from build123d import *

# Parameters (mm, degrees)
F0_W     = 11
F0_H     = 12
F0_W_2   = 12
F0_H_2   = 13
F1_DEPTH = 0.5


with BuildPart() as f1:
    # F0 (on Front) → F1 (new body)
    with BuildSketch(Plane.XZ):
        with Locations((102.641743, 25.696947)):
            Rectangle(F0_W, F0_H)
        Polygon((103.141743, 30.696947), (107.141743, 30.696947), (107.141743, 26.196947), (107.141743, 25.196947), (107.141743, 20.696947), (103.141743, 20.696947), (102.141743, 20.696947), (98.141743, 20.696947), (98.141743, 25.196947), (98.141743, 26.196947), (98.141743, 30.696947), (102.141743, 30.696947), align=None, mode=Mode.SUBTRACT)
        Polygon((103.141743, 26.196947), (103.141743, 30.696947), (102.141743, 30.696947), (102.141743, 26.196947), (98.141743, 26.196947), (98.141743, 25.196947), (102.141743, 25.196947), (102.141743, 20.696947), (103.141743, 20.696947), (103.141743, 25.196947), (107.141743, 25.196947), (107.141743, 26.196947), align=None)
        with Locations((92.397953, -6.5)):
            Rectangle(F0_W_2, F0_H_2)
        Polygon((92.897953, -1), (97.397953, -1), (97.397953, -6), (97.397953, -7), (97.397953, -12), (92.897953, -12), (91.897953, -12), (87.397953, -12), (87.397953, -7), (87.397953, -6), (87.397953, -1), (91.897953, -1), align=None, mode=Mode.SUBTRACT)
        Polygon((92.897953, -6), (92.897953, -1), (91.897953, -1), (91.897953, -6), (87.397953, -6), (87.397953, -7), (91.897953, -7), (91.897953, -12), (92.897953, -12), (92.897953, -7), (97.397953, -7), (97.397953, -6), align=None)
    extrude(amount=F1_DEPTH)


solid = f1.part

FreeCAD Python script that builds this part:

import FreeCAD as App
import Part
import Sketcher
Q = App.Units.Quantity

doc = App.newDocument("Part")
body = doc.addObject("PartDesign::Body", "Body")
body.AllowCompound = True

sketch1 = body.newObject("Sketcher::SketchObject", "Sketch")
sketch1.AttachmentSupport = (doc.getObject("XZ_Plane"), [""])
sketch1.MapMode = "FlatFace"
sketch1.addGeometry(Part.LineSegment(App.Vector(97.1, 31.7, 0), App.Vector(97.1, 19.7, 0)), False)
sketch1.addGeometry(Part.LineSegment(App.Vector(97.1, 19.7, 0), App.Vector(108.1, 19.7, 0)), False)
sketch1.addGeometry(Part.LineSegment(App.Vector(108.1, 19.7, 0), App.Vector(108.1, 31.7, 0)), False)
sketch1.addGeometry(Part.LineSegment(App.Vector(108.1, 31.7, 0), App.Vector(97.1, 31.7, 0)), False)
sketch1.addGeometry(Part.LineSegment(App.Vector(98.1, 30.7, 0), App.Vector(102.1, 30.7, 0)), False)
sketch1.addGeometry(Part.LineSegment(App.Vector(102.1, 30.7, 0), App.Vector(102.1, 26.2, 0)), False)
sketch1.addGeometry(Part.LineSegment(App.Vector(102.1, 26.2, 0), App.Vector(98.1, 26.2, 0)), False)
sketch1.addGeometry(Part.LineSegment(App.Vector(98.1, 26.2, 0), App.Vector(98.1, 30.7, 0)), False)
sketch1.addGeometry(Part.LineSegment(App.Vector(103.1, 30.7, 0), App.Vector(107.1, 30.7, 0)), False)
sketch1.addGeometry(Part.LineSegment(App.Vector(107.1, 30.7, 0), App.Vector(107.1, 26.2, 0)), False)
sketch1.addGeometry(Part.LineSegment(App.Vector(107.1, 26.2, 0), App.Vector(103.1, 26.2, 0)), False)
sketch1.addGeometry(Part.LineSegment(App.Vector(103.1, 26.2, 0), App.Vector(103.1, 30.7, 0)), False)
sketch1.addGeometry(Part.LineSegment(App.Vector(107.1, 25.2, 0), App.Vector(107.1, 20.7, 0)), False)
sketch1.addGeometry(Part.LineSegment(App.Vector(107.1, 20.7, 0), App.Vector(103.1, 20.7, 0)), False)
sketch1.addGeometry(Part.LineSegment(App.Vector(103.1, 20.7, 0), App.Vector(103.1, 25.2, 0)), False)
sketch1.addGeometry(Part.LineSegment(App.Vector(103.1, 25.2, 0), App.Vector(107.1, 25.2, 0)), False)
sketch1.addGeometry(Part.LineSegment(App.Vector(102.1, 20.7, 0), App.Vector(98.1, 20.7, 0)), False)
sketch1.addGeometry(Part.LineSegment(App.Vector(98.1, 20.7, 0), App.Vector(98.1, 25.2, 0)), False)
sketch1.addGeometry(Part.LineSegment(App.Vector(98.1, 25.2, 0), App.Vector(102.1, 25.2, 0)), False)
sketch1.addGeometry(Part.LineSegment(App.Vector(102.1, 25.2, 0), App.Vector(102.1, 20.7, 0)), False)
sketch1.addGeometry(Part.LineSegment(App.Vector(86.4, 0, 0), App.Vector(86.4, -13, 0)), False)
sketch1.addGeometry(Part.LineSegment(App.Vector(86.4, -13, 0), App.Vector(98.4, -13, 0)), False)
sketch1.addGeometry(Part.LineSegment(App.Vector(98.4, -13, 0), App.Vector(98.4, 0, 0)), False)
sketch1.addGeometry(Part.LineSegment(App.Vector(98.4, 0, 0), App.Vector(86.4, 0, 0)), False)
sketch1.addGeometry(Part.LineSegment(App.Vector(87.4, -1, 0), App.Vector(91.9, -1, 0)), False)
sketch1.addGeometry(Part.LineSegment(App.Vector(91.9, -1, 0), App.Vector(91.9, -6, 0)), False)
sketch1.addGeometry(Part.LineSegment(App.Vector(91.9, -6, 0), App.Vector(87.4, -6, 0)), False)
sketch1.addGeometry(Part.LineSegment(App.Vector(87.4, -6, 0), App.Vector(87.4, -1, 0)), False)
sketch1.addGeometry(Part.LineSegment(App.Vector(92.9, -1, 0), App.Vector(97.4, -1, 0)), False)
sketch1.addGeometry(Part.LineSegment(App.Vector(97.4, -1, 0), App.Vector(97.4, -6, 0)), False)
sketch1.addGeometry(Part.LineSegment(App.Vector(97.4, -6, 0), App.Vector(92.9, -6, 0)), False)
sketch1.addGeometry(Part.LineSegment(App.Vector(92.9, -6, 0), App.Vector(92.9, -1, 0)), False)
sketch1.addGeometry(Part.LineSegment(App.Vector(97.4, -7, 0), App.Vector(97.4, -12, 0)), False)
sketch1.addGeometry(Part.LineSegment(App.Vector(97.4, -12, 0), App.Vector(92.9, -12, 0)), False)
sketch1.addGeometry(Part.LineSegment(App.Vector(92.9, -12, 0), App.Vector(92.9, -7, 0)), False)
sketch1.addGeometry(Part.LineSegment(App.Vector(92.9, -7, 0), App.Vector(97.4, -7, 0)), False)
sketch1.addGeometry(Part.LineSegment(App.Vector(91.9, -12, 0), App.Vector(87.4, -12, 0)), False)
sketch1.addGeometry(Part.LineSegment(App.Vector(87.4, -12, 0), App.Vector(87.4, -7, 0)), False)
sketch1.addGeometry(Part.LineSegment(App.Vector(87.4, -7, 0), App.Vector(91.9, -7, 0)), False)
sketch1.addGeometry(Part.LineSegment(App.Vector(91.9, -7, 0), App.Vector(91.9, -12, 0)), False)
sketch1.addConstraint(Sketcher.Constraint("Coincident", 0, 2, 1, 1))
sketch1.addConstraint(Sketcher.Constraint("Coincident", 1, 2, 2, 1))
sketch1.addConstraint(Sketcher.Constraint("Coincident", 2, 2, 3, 1))
sketch1.addConstraint(Sketcher.Constraint("Coincident", 3, 2, 0, 1))
sketch1.addConstraint(Sketcher.Constraint("Coincident", 4, 2, 5, 1))
sketch1.addConstraint(Sketcher.Constraint("Coincident", 5, 2, 6, 1))
sketch1.addConstraint(Sketcher.Constraint("Coincident", 6, 2, 7, 1))
sketch1.addConstraint(Sketcher.Constraint("Coincident", 7, 2, 4, 1))
sketch1.addConstraint(Sketcher.Constraint("Coincident", 8, 2, 9, 1))
sketch1.addConstraint(Sketcher.Constraint("Coincident", 9, 2, 10, 1))
sketch1.addConstraint(Sketcher.Constraint("Coincident", 10, 2, 11, 1))
sketch1.addConstraint(Sketcher.Constraint("Coincident", 11, 2, 8, 1))
sketch1.addConstraint(Sketcher.Constraint("Coincident", 12, 2, 13, 1))
sketch1.addConstraint(Sketcher.Constraint("Coincident", 13, 2, 14, 1))
sketch1.addConstraint(Sketcher.Constraint("Coincident", 14, 2, 15, 1))
sketch1.addConstraint(Sketcher.Constraint("Coincident", 15, 2, 12, 1))
sketch1.addConstraint(Sketcher.Constraint("Coincident", 16, 2, 17, 1))
sketch1.addConstraint(Sketcher.Constraint("Coincident", 17, 2, 18, 1))
sketch1.addConstraint(Sketcher.Constraint("Coincident", 18, 2, 19, 1))
sketch1.addConstraint(Sketcher.Constraint("Coincident", 19, 2, 16, 1))
sketch1.addConstraint(Sketcher.Constraint("Coincident", 20, 2, 21, 1))
sketch1.addConstraint(Sketcher.Constraint("Coincident", 21, 2, 22, 1))
sketch1.addConstraint(Sketcher.Constraint("Coincident", 22, 2, 23, 1))
sketch1.addConstraint(Sketcher.Constraint("Coincident", 23, 2, 20, 1))
sketch1.addConstraint(Sketcher.Constraint("Coincident", 24, 2, 25, 1))
sketch1.addConstraint(Sketcher.Constraint("Coincident", 25, 2, 26, 1))
sketch1.addConstraint(Sketcher.Constraint("Coincident", 26, 2, 27, 1))
sketch1.addConstraint(Sketcher.Constraint("Coincident", 27, 2, 24, 1))
sketch1.addConstraint(Sketcher.Constraint("Coincident", 28, 2, 29, 1))
sketch1.addConstraint(Sketcher.Constraint("Coincident", 29, 2, 30, 1))
sketch1.addConstraint(Sketcher.Constraint("Coincident", 30, 2, 31, 1))
sketch1.addConstraint(Sketcher.Constraint("Coincident", 31, 2, 28, 1))
sketch1.addConstraint(Sketcher.Constraint("Coincident", 32, 2, 33, 1))
sketch1.addConstraint(Sketcher.Constraint("Coincident", 33, 2, 34, 1))
sketch1.addConstraint(Sketcher.Constraint("Coincident", 34, 2, 35, 1))
sketch1.addConstraint(Sketcher.Constraint("Coincident", 35, 2, 32, 1))
sketch1.addConstraint(Sketcher.Constraint("Coincident", 36, 2, 37, 1))
sketch1.addConstraint(Sketcher.Constraint("Coincident", 37, 2, 38, 1))
sketch1.addConstraint(Sketcher.Constraint("Coincident", 38, 2, 39, 1))
sketch1.addConstraint(Sketcher.Constraint("Coincident", 39, 2, 36, 1))
sketch1.addConstraint(Sketcher.Constraint("Vertical", 0))
sketch1.addConstraint(Sketcher.Constraint("Horizontal", 1))
sketch1.addConstraint(Sketcher.Constraint("Vertical", 2))
sketch1.addConstraint(Sketcher.Constraint("Horizontal", 3))
sketch1.addConstraint(Sketcher.Constraint("Horizontal", 4))
sketch1.addConstraint(Sketcher.Constraint("Vertical", 5))
sketch1.addConstraint(Sketcher.Constraint("Horizontal", 6))
sketch1.addConstraint(Sketcher.Constraint("Vertical", 7))
sketch1.addConstraint(Sketcher.Constraint("Horizontal", 8))
sketch1.addConstraint(Sketcher.Constraint("Vertical", 9))
sketch1.addConstraint(Sketcher.Constraint("Horizontal", 10))
sketch1.addConstraint(Sketcher.Constraint("Vertical", 11))
sketch1.addConstraint(Sketcher.Constraint("Vertical", 12))
sketch1.addConstraint(Sketcher.Constraint("Horizontal", 13))
sketch1.addConstraint(Sketcher.Constraint("Vertical", 14))
sketch1.addConstraint(Sketcher.Constraint("Horizontal", 15))
sketch1.addConstraint(Sketcher.Constraint("Horizontal", 16))
sketch1.addConstraint(Sketcher.Constraint("Vertical", 17))
sketch1.addConstraint(Sketcher.Constraint("Horizontal", 18))
sketch1.addConstraint(Sketcher.Constraint("Vertical", 19))
sketch1.addConstraint(Sketcher.Constraint("Vertical", 20))
sketch1.addConstraint(Sketcher.Constraint("Horizontal", 21))
sketch1.addConstraint(Sketcher.Constraint("Vertical", 22))
sketch1.addConstraint(Sketcher.Constraint("Horizontal", 23))
sketch1.addConstraint(Sketcher.Constraint("Horizontal", 24))
sketch1.addConstraint(Sketcher.Constraint("Vertical", 25))
sketch1.addConstraint(Sketcher.Constraint("Horizontal", 26))
sketch1.addConstraint(Sketcher.Constraint("Vertical", 27))
sketch1.addConstraint(Sketcher.Constraint("Horizontal", 28))
sketch1.addConstraint(Sketcher.Constraint("Vertical", 29))
sketch1.addConstraint(Sketcher.Constraint("Horizontal", 30))
sketch1.addConstraint(Sketcher.Constraint("Vertical", 31))
sketch1.addConstraint(Sketcher.Constraint("Vertical", 32))
sketch1.addConstraint(Sketcher.Constraint("Horizontal", 33))
sketch1.addConstraint(Sketcher.Constraint("Vertical", 34))
sketch1.addConstraint(Sketcher.Constraint("Horizontal", 35))
sketch1.addConstraint(Sketcher.Constraint("Horizontal", 36))
sketch1.addConstraint(Sketcher.Constraint("Vertical", 37))
sketch1.addConstraint(Sketcher.Constraint("Horizontal", 38))
sketch1.addConstraint(Sketcher.Constraint("Vertical", 39))
sketch1.addConstraint(Sketcher.Constraint("PointOnObject", 22, 2, -1))
sketch1.addConstraint(Sketcher.Constraint("Horizontal", 7, 2, 8, 2))
sketch1.addConstraint(Sketcher.Constraint("Horizontal", 6, 2, 9, 2))
sketch1.addConstraint(Sketcher.Constraint("Horizontal", 13, 2, 16, 2))
sketch1.addConstraint(Sketcher.Constraint("Horizontal", 15, 2, 17, 2))
sketch1.addConstraint(Sketcher.Constraint("Horizontal", 27, 2, 28, 2))
sketch1.addConstraint(Sketcher.Constraint("Horizontal", 26, 2, 29, 2))
sketch1.addConstraint(Sketcher.Constraint("Horizontal", 33, 2, 36, 2))
sketch1.addConstraint(Sketcher.Constraint("Horizontal", 35, 2, 37, 2))
sketch1.addConstraint(Sketcher.Constraint("Vertical", 9, 2, 12, 2))
sketch1.addConstraint(Sketcher.Constraint("Vertical", 11, 2, 13, 2))
sketch1.addConstraint(Sketcher.Constraint("Vertical", 7, 2, 16, 2))
sketch1.addConstraint(Sketcher.Constraint("Vertical", 5, 2, 18, 2))
sketch1.addConstraint(Sketcher.Constraint("Vertical", 29, 2, 32, 2))
sketch1.addConstraint(Sketcher.Constraint("Vertical", 31, 2, 33, 2))
sketch1.addConstraint(Sketcher.Constraint("Vertical", 27, 2, 36, 2))
sketch1.addConstraint(Sketcher.Constraint("Vertical", 25, 2, 38, 2))
sketch1.addConstraint(Sketcher.Constraint("Equal", 6, 8))
sketch1.addConstraint(Sketcher.Constraint("Equal", 26, 28))
sketch1.addConstraint(Sketcher.Constraint("Equal", 23, 0))
sketch1.addConstraint(Sketcher.Constraint("Equal", 38, 5))
sketch1.addConstraint(Sketcher.Constraint("Equal", 11, 12))
sketch1.addConstraint(Sketcher.Constraint("Equal", 31, 32))
sketch1.addConstraint(Sketcher.Constraint("DistanceX", 1, 1, 1, 2, Q("11 mm")))
sketch1.addConstraint(Sketcher.Constraint("DistanceX", 4, 1, 4, 2, Q("4 mm")))
sketch1.addConstraint(Sketcher.Constraint("DistanceX", 21, 1, 21, 2, Q("12 mm")))
sketch1.addConstraint(Sketcher.Constraint("DistanceY", 20, 2, 20, 1, Q("13 mm")))
sketch1.addConstraint(Sketcher.Constraint("DistanceY", 25, 2, 25, 1, Q("5 mm")))
sketch1.addConstraint(Sketcher.Constraint("DistanceX", 24, 1, 24, 2, Q("4.5 mm")))
sketch1.addConstraint(Sketcher.Constraint("DistanceY", 24, 2, -1, 1, Q("1 mm")))
sketch1.addConstraint(Sketcher.Constraint("DistanceY", 32, 2, -1, 1, Q("12 mm")))
sketch1.addConstraint(Sketcher.Constraint("DistanceX", 3, 2, 4, 2, Q("5 mm")))
sketch1.addConstraint(Sketcher.Constraint("DistanceY", 4, 2, 3, 2, Q("1 mm")))
sketch1.addConstraint(Sketcher.Constraint("DistanceX", 8, 2, 2, 2, Q("1 mm")))
sketch1.addConstraint(Sketcher.Constraint("DistanceY", 1, 2, 12, 2, Q("1 mm")))
sketch1.addConstraint(Sketcher.Constraint("DistanceX", 23, 2, 26, 2, Q("1 mm")))
sketch1.addConstraint(Sketcher.Constraint("DistanceX", 28, 2, 22, 2, Q("1 mm")))
sketch1.addConstraint(Sketcher.Constraint("DistanceX", 20, 2, 0, 2, Q("10.74379 mm")))
sketch1.addConstraint(Sketcher.Constraint("DistanceX", -1, 1, 0, 2, Q("97.141743 mm")))
sketch1.addConstraint(Sketcher.Constraint("DistanceY", -1, 1, 0, 2, Q("19.696947 mm")))
pad1 = body.newObject("PartDesign::Pad", "Pad")
pad1.Profile = sketch1
pad1.Length = 0.5

doc.recompute()
